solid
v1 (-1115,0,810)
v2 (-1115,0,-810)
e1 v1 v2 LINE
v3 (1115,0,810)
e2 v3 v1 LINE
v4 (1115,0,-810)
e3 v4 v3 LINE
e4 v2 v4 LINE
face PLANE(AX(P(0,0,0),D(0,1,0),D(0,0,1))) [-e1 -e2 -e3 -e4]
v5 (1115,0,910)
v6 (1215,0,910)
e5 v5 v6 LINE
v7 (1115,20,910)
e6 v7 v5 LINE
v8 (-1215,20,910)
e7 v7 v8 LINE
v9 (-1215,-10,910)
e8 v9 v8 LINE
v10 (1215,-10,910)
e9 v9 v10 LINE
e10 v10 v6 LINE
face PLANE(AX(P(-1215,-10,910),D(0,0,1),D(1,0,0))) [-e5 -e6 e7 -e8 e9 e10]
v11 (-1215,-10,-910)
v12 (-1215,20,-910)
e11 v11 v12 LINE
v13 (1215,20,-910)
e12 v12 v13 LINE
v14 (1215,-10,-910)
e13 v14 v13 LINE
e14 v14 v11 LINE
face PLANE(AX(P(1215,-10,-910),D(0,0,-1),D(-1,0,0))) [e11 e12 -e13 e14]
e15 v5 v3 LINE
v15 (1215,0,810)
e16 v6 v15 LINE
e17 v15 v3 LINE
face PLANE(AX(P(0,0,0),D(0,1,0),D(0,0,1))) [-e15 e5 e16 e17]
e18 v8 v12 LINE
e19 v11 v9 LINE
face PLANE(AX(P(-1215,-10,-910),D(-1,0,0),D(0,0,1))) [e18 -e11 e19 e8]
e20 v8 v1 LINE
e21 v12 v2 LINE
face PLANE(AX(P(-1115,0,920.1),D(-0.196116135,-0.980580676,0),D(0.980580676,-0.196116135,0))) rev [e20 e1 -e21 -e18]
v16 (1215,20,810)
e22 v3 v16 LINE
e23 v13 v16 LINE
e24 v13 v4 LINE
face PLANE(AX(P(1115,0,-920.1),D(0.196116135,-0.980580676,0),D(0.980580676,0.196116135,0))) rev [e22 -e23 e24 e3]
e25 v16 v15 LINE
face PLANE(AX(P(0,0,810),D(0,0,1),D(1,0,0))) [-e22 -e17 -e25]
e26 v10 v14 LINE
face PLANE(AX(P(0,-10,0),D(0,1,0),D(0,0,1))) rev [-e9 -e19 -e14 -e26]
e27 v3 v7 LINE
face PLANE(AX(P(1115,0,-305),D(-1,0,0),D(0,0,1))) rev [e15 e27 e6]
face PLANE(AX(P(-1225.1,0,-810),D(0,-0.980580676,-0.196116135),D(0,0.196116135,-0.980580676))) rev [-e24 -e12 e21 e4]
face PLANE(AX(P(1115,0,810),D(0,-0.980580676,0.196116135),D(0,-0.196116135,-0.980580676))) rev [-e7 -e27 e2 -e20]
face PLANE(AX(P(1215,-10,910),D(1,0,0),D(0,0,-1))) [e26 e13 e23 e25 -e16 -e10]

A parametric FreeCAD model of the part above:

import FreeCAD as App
import Part
import Sketcher

doc = App.newDocument("Part")
body = doc.addObject("PartDesign::Body", "Body")

sketch1 = body.newObject("Sketcher::SketchObject", "Sketch")
sketch1.AttachmentSupport = (doc.getObject("XZ_Plane"), [""])
sketch1.MapMode = "FlatFace"
sketch1.addGeometry([
    Part.LineSegment(App.Vector(1215, 910, 0), App.Vector(1215, -910, 0)),
    Part.LineSegment(App.Vector(1215, -910, 0), App.Vector(-1215, -910, 0)),
    Part.LineSegment(App.Vector(-1215, -910, 0), App.Vector(-1215, 910, 0)),
    Part.LineSegment(App.Vector(-1215, 910, 0), App.Vector(1215, 910, 0)),
], False)
sketch1.addConstraint([
    Sketcher.Constraint("Coincident", 0, 2, 1, 1),
    Sketcher.Constraint("Coincident", 1, 2, 2, 1),
    Sketcher.Constraint("Coincident", 2, 2, 3, 1),
    Sketcher.Constraint("Coincident", 3, 2, 0, 1),
    Sketcher.Constraint("Vertical", 0),
    Sketcher.Constraint("Horizontal", 1),
    Sketcher.Constraint("Vertical", 2),
    Sketcher.Constraint("Horizontal", 3),
    Sketcher.Constraint("Symmetric", 0, 2, 2, 2, -1, 1),
    Sketcher.Constraint("DistanceX", 1, 2, 1, 1, 2430.0),
    Sketcher.Constraint("DistanceY", 0, 2, 0, 1, 1820.0),
])
pad1 = body.newObject("PartDesign::Pad", "Pad")
pad1.Profile = sketch1
pad1.Length = 10

sketch2 = body.newObject("Sketcher::SketchObject", "Sketch001")
sketch2.AttachmentSupport = (doc.getObject("XY_Plane"), [""])
sketch2.MapMode = "FlatFace"
sketch2.addGeometry([
    Part.LineSegment(App.Vector(-1115, 0, 0), App.Vector(-1215, 20, 0)),
    Part.LineSegment(App.Vector(-1215, 20, 0), App.Vector(-1215, 0, 0)),
    Part.LineSegment(App.Vector(-1215, 0, 0), App.Vector(-1115, 0, 0)),
], False)
sketch2.addConstraint([
    Sketcher.Constraint("Coincident", 0, 2, 1, 1),
    Sketcher.Constraint("Coincident", 1, 2, 2, 1),
    Sketcher.Constraint("Coincident", 2, 2, 0, 1),
    Sketcher.Constraint("Vertical", 1),
    Sketcher.Constraint("Horizontal", 2),
    Sketcher.Constraint("PointOnObject", 1, 2, -1),
    Sketcher.Constraint("DistanceX", 2, 1, 2, 2, 100.0),
    Sketcher.Constraint("DistanceY", 1, 2, 1, 1, 20.0),
    Sketcher.Constraint("DistanceX", 0, 2, -1, 1, 1215.0),
])

sketch3 = body.newObject("Sketcher::SketchObject", "Sketch002")
sketch3.AttachmentSupport = (doc.getObject("XZ_Plane"), [""])
sketch3.MapMode = "FlatFace"
sketch3.addGeometry([
    Part.LineSegment(App.Vector(1115, 810, 0), App.Vector(-1115, 810, 0)),
    Part.LineSegment(App.Vector(-1115, 810, 0), App.Vector(-1115, 0, 0)),
], False)
sketch3.addConstraint([
    Sketcher.Constraint("Coincident", 0, 2, 1, 1),
    Sketcher.Constraint("Horizontal", 0),
    Sketcher.Constraint("Vertical", 1),
    Sketcher.Constraint("PointOnObject", 1, 2, -1),
    Sketcher.Constraint("DistanceX", 0, 2, 0, 1, 2230.0),
    Sketcher.Constraint("DistanceY", 1, 2, 1, 1, 810.0),
    Sketcher.Constraint("DistanceX", -1, 1, 0, 1, 1115.0),
])
doc.recompute()

additivepipe = body.newObject("PartDesign::AdditivePipe", "AdditivePipe")
additivepipe.Profile = sketch2
additivepipe.Spine = (sketch3, ["Edge1", "Edge2"])
additivepipe.Transition = "Right corner"

sketch4 = body.newObject("Sketcher::SketchObject", "Sketch003")
sketch4.AttachmentSupport = (doc.getObject("XY_Plane"), [""])
sketch4.MapMode = "FlatFace"
sketch4.addGeometry([
    Part.LineSegment(App.Vector(-1115, 0, 0), App.Vector(-1215, 20, 0)),
    Part.LineSegment(App.Vector(-1215, 20, 0), App.Vector(-1215, 0, 0)),
    Part.LineSegment(App.Vector(-1215, 0, 0), App.Vector(-1115, 0, 0)),
], False)
sketch4.addConstraint([
    Sketcher.Constraint("Coincident", 0, 2, 1, 1),
    Sketcher.Constraint("Coincident", 1, 2, 2, 1),
    Sketcher.Constraint("Coincident", 2, 2, 0, 1),
    Sketcher.Constraint("Vertical", 1),
    Sketcher.Constraint("Horizontal", 2),
    Sketcher.Constraint("PointOnObject", 1, 2, -1),
    Sketcher.Constraint("DistanceX", 2, 1, 2, 2, 100.0),
    Sketcher.Constraint("DistanceY", 1, 2, 1, 1, 20.0),
    Sketcher.Constraint("DistanceX", 0, 2, -1, 1, 1215.0),
])

sketch5 = body.newObject("Sketcher::SketchObject", "Sketch004")
sketch5.AttachmentSupport = (doc.getObject("XZ_Plane"), [""])
sketch5.MapMode = "FlatFace"
sketch5.addGeometry([
    Part.LineSegment(App.Vector(-1115, 0, 0), App.Vector(-1115, -810, 0)),
    Part.LineSegment(App.Vector(-1115, -810, 0), App.Vector(1115, -810, 0)),
    Part.LineSegment(App.Vector(1115, -810, 0), App.Vector(1115, 810, 0)),
], False)
sketch5.addConstraint([
    Sketcher.Constraint("Coincident", 0, 2, 1, 1),
    Sketcher.Constraint("Coincident", 1, 2, 2, 1),
    Sketcher.Constraint("Vertical", 0),
    Sketcher.Constraint("Horizontal", 1),
    Sketcher.Constraint("Vertical", 2),
    Sketcher.Constraint("Symmetric", 0, 2, 2, 2, -1, 1),
    Sketcher.Constraint("PointOnObject", 0, 1, -1),
    Sketcher.Constraint("DistanceX", 1, 1, 1, 2, 2230.0),
    Sketcher.Constraint("DistanceY", 0, 2, 0, 1, 810.0),
])
doc.recompute()

additivepipe2 = body.newObject("PartDesign::AdditivePipe", "AdditivePipe001")
additivepipe2.Profile = sketch4
additivepipe2.Spine = (sketch5, ["Edge1", "Edge2", "Edge3"])
additivepipe2.Transition = "Right corner"

doc.recompute()
